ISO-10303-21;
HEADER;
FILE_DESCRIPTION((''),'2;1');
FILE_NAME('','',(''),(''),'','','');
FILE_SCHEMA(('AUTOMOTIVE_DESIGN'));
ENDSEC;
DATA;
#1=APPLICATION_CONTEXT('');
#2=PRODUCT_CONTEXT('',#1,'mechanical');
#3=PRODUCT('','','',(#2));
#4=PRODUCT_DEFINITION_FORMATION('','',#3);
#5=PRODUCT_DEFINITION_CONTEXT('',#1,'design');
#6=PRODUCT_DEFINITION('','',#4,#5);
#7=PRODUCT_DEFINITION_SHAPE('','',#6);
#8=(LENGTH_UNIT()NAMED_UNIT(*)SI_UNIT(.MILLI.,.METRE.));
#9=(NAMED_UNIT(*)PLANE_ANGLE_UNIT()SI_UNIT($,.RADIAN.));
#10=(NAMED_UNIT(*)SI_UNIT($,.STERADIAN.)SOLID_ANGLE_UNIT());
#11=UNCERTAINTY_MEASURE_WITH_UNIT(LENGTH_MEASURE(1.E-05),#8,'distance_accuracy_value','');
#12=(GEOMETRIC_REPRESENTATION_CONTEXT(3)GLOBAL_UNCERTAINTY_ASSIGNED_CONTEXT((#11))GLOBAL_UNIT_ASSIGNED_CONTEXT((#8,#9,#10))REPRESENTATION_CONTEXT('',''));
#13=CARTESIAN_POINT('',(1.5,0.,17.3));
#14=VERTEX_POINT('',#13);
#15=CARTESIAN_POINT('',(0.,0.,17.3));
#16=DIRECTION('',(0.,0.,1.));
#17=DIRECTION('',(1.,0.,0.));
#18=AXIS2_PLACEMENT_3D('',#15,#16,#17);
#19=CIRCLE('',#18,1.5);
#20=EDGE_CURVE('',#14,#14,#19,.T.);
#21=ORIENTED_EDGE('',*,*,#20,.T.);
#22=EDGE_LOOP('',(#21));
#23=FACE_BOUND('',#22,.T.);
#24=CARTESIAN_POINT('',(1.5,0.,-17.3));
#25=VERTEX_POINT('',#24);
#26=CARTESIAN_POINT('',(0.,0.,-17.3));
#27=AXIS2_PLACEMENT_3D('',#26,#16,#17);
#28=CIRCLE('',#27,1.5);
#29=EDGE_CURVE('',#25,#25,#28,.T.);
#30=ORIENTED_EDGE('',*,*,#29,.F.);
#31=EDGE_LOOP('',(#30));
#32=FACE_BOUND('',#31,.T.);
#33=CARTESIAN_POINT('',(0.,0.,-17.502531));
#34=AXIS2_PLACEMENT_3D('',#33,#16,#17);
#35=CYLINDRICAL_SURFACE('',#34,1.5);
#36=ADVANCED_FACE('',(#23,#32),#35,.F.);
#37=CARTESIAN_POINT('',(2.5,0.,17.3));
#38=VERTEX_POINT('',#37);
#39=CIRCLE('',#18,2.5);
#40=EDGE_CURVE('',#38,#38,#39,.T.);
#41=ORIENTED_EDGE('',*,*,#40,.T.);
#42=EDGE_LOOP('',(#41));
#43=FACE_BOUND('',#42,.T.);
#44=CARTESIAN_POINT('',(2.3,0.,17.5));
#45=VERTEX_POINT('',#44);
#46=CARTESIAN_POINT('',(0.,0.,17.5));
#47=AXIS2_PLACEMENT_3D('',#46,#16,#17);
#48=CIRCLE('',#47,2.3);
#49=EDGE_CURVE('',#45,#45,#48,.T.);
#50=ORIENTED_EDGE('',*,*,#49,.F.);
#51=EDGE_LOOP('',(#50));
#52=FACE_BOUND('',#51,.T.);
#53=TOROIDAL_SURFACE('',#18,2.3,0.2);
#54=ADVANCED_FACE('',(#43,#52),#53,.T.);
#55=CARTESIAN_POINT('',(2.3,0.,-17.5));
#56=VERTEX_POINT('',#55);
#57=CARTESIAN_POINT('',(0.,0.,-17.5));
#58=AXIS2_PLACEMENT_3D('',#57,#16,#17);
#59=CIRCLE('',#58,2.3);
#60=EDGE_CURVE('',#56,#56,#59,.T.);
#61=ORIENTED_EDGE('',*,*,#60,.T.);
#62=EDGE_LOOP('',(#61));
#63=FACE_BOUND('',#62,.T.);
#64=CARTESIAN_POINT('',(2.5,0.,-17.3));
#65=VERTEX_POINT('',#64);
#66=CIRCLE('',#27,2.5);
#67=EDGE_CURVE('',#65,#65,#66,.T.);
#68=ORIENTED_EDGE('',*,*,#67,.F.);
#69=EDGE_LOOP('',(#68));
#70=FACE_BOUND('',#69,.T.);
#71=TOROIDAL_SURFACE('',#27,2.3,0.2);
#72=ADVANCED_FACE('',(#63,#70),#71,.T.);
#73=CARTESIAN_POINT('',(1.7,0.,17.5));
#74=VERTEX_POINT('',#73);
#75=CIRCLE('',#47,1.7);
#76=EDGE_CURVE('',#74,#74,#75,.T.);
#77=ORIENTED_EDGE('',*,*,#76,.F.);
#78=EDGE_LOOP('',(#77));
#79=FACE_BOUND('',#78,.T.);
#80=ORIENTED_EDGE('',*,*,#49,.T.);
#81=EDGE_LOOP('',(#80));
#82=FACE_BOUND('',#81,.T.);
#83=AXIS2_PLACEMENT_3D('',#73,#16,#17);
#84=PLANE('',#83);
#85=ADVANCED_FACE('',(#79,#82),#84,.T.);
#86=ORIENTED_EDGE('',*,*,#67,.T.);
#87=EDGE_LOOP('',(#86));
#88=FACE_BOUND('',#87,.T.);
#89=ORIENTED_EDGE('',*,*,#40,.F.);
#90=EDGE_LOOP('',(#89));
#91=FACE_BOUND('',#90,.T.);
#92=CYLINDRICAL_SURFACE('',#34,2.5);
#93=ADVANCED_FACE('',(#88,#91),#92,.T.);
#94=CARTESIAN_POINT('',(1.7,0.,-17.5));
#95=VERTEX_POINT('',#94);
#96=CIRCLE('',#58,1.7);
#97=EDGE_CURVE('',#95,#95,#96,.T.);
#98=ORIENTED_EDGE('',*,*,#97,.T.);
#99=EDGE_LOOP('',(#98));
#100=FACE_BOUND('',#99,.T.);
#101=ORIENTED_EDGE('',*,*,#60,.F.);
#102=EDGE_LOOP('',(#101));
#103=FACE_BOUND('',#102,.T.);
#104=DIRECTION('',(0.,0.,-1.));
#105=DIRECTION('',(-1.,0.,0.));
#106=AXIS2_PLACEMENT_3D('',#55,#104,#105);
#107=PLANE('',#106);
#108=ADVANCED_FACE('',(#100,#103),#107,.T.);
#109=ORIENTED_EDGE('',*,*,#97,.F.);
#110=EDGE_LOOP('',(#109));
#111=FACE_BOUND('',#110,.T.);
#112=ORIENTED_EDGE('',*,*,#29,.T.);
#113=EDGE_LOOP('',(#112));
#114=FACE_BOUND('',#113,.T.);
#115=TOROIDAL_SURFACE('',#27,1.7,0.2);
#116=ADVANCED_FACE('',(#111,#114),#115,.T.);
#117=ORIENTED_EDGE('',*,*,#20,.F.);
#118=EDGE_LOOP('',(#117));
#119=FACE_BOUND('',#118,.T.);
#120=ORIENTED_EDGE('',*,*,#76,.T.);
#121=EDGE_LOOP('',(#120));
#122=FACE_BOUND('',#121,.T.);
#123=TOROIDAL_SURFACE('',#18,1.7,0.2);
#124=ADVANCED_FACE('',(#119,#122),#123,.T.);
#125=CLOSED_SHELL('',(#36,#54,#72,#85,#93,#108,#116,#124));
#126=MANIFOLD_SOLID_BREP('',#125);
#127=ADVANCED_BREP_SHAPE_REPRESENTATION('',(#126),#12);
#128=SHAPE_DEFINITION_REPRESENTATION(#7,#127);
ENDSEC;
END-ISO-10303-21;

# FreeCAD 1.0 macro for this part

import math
import FreeCAD as App
import Part
import Sketcher

V = App.Vector

doc = App.newDocument("Part")
body = doc.addObject("PartDesign::Body", "Body")

# Sketch on XZ plane
sketch1 = doc.addObject("Sketcher::SketchObject", "Sketch")
body.addObject(sketch1)
sketch1.AttachmentSupport = (doc.XZ_Plane, [""])
sketch1.MapMode = "FlatFace"
sketch1.addGeometry([
    Part.LineSegment(V(1.5, -17.3, 0), V(1.5, 17.3, 0)),  # 0
    Part.ArcOfCircle(Part.Circle(V(1.7, 17.3, 0), V(0, 0, 1), 0.2), math.radians(90), math.radians(180)),  # 1
    Part.LineSegment(V(1.7, 17.5, 0), V(2.3, 17.5, 0)),  # 2
    Part.ArcOfCircle(Part.Circle(V(2.3, 17.3, 0), V(0, 0, 1), 0.2), math.radians(0), math.radians(90)),  # 3
    Part.LineSegment(V(2.5, 17.3, 0), V(2.5, -17.3, 0)),  # 4
    Part.ArcOfCircle(Part.Circle(V(2.3, -17.3, 0), V(0, 0, 1), 0.2), math.radians(-90), math.radians(0)),  # 5
    Part.LineSegment(V(2.3, -17.5, 0), V(1.7, -17.5, 0)),  # 6
    Part.ArcOfCircle(Part.Circle(V(1.7, -17.3, 0), V(0, 0, 1), 0.2), math.radians(-180), math.radians(-90)),  # 7
], False)
sketch1.addConstraint([
    Sketcher.Constraint("Tangent", 0, 2, 1, 2),
    Sketcher.Constraint("Tangent", 1, 1, 2, 1),
    Sketcher.Constraint("Tangent", 2, 2, 3, 2),
    Sketcher.Constraint("Tangent", 3, 1, 4, 1),
    Sketcher.Constraint("Tangent", 4, 2, 5, 2),
    Sketcher.Constraint("Tangent", 5, 1, 6, 1),
    Sketcher.Constraint("Tangent", 6, 2, 7, 2),
    Sketcher.Constraint("Tangent", 7, 1, 0, 1),
    Sketcher.Constraint("Vertical", 0),
    Sketcher.Constraint("Horizontal", 2),
    Sketcher.Constraint("Vertical", 4),
    Sketcher.Constraint("Horizontal", 6),
    Sketcher.Constraint("Equal", 1, 3),
    Sketcher.Constraint("Equal", 3, 5),
    Sketcher.Constraint("Equal", 5, 7),
    Sketcher.Constraint("Radius", 1, 0.2),
    Sketcher.Constraint("DistanceX", 2, 1, 2, 2, 0.6),
    Sketcher.Constraint("DistanceY", 0, 1, 0, 2, 34.6),
    Sketcher.Constraint("DistanceX", -1, 1, 1, 3, 1.7),
    Sketcher.Constraint("DistanceY", -1, 1, 1, 3, 17.3),
])
revolution = doc.addObject("PartDesign::Revolution", "Revolution")
body.addObject(revolution)
revolution.Profile = sketch1
revolution.ReferenceAxis = (sketch1, ["V_Axis"])
revolution.Angle = 360

doc.recompute()
